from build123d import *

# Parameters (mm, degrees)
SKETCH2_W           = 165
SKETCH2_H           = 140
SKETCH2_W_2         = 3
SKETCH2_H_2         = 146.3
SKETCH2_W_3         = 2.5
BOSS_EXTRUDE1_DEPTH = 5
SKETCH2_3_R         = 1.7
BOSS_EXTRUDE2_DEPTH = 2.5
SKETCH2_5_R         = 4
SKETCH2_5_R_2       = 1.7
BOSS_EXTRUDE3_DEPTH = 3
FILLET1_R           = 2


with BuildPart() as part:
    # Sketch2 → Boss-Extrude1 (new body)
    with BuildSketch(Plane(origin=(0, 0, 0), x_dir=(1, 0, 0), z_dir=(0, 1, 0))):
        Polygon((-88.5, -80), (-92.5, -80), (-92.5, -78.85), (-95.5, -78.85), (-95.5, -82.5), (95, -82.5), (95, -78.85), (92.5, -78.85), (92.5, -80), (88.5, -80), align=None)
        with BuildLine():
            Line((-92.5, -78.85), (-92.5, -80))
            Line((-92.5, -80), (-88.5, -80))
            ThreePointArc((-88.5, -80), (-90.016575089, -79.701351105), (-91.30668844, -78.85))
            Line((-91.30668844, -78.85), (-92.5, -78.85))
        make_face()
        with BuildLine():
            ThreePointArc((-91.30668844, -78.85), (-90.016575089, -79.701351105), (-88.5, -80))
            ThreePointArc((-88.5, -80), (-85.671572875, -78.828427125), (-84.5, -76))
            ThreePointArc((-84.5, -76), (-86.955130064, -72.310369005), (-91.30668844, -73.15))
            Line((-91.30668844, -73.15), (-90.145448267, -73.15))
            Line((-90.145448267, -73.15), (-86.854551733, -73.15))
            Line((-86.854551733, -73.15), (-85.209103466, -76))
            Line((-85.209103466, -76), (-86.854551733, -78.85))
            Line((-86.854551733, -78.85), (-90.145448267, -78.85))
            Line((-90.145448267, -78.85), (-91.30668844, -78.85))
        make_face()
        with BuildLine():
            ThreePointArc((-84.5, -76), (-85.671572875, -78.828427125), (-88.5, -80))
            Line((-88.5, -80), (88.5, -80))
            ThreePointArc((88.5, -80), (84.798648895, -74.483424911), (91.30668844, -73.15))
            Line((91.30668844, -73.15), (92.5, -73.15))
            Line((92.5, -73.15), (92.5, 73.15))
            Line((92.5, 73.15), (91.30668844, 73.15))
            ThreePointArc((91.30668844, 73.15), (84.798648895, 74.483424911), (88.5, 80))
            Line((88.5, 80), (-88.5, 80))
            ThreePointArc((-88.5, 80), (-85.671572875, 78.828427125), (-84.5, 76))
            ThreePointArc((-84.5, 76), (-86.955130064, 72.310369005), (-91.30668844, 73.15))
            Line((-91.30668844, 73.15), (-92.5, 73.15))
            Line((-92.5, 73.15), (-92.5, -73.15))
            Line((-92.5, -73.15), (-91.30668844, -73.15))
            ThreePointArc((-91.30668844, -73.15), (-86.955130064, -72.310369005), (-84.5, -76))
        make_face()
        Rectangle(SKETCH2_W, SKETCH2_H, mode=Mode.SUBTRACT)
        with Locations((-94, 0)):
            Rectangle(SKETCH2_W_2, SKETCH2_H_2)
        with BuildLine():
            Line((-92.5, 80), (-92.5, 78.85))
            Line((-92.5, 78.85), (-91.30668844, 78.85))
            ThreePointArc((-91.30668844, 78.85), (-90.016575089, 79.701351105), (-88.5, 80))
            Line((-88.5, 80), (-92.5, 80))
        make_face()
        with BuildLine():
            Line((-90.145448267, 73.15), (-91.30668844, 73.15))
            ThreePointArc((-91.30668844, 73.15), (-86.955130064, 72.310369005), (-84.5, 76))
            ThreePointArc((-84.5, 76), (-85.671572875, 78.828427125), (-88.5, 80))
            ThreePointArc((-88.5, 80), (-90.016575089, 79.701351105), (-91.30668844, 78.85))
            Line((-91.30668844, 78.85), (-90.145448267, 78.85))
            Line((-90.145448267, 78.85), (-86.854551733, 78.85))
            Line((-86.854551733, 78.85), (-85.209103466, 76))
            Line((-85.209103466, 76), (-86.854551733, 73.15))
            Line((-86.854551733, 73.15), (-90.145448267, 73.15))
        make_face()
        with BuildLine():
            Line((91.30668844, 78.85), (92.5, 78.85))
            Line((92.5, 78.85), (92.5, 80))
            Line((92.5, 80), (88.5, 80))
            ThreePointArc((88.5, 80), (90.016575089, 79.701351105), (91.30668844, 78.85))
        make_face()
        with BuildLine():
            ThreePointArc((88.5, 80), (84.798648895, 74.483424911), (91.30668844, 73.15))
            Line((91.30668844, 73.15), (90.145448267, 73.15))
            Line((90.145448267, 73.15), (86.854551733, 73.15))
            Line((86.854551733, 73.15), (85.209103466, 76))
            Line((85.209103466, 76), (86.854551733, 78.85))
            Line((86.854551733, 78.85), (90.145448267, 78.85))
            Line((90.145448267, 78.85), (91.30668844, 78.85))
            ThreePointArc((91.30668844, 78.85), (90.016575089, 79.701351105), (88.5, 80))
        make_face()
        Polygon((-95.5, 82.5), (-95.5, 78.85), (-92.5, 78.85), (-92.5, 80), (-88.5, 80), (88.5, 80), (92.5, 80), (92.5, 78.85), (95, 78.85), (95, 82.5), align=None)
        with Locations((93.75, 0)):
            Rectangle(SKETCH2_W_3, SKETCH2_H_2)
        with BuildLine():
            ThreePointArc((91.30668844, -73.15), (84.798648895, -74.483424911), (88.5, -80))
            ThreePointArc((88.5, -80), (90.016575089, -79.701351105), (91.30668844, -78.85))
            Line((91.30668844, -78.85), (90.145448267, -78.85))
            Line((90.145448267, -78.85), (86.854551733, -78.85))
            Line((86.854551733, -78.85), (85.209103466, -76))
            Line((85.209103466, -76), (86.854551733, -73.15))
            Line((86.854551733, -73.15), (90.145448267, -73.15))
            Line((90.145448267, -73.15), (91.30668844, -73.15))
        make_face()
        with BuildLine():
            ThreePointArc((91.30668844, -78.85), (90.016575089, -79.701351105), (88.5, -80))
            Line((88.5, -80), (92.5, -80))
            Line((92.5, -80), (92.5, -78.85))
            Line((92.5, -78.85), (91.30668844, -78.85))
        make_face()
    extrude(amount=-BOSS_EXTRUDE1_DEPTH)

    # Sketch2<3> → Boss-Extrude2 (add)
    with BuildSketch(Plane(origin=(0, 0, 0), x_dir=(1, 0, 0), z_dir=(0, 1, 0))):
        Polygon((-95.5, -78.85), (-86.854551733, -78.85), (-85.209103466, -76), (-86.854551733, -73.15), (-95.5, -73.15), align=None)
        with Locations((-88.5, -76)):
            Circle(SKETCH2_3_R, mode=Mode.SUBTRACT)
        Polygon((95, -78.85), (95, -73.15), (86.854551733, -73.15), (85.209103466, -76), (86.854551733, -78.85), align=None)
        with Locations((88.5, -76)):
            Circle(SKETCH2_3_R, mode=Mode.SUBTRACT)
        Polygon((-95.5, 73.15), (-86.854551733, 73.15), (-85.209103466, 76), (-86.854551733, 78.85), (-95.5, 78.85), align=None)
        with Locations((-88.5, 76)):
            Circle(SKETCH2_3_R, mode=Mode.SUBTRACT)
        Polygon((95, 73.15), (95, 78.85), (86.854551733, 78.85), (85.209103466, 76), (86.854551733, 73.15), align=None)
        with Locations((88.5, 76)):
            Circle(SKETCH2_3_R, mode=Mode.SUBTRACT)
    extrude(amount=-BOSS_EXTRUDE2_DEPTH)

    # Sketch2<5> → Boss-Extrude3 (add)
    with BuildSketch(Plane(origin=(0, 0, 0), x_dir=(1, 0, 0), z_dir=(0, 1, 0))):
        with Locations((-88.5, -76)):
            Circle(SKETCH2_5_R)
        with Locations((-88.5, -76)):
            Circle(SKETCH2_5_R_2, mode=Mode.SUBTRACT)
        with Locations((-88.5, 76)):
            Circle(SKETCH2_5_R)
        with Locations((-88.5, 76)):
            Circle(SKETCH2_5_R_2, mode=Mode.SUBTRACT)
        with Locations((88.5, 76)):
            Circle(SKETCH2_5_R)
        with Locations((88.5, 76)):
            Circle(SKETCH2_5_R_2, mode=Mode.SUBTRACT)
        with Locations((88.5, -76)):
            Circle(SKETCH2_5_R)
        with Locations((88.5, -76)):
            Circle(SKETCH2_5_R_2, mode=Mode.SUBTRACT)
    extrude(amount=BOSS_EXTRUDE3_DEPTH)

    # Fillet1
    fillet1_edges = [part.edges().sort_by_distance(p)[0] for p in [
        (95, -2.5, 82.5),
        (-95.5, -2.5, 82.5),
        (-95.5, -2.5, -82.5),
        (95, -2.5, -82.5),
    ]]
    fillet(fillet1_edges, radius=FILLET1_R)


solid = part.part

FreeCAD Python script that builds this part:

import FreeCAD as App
import Part
import Sketcher
Q = App.Units.Quantity


def edges_at(feature, points):
    """Names of the edges that pass closest to the given points."""
    edges = feature.Shape.Edges
    near = lambda p: min(range(len(edges)), key=lambda i: edges[i].distToShape(Part.Vertex(*p))[0])
    return sorted({f"Edge{near(p) + 1}" for p in points})


def add_polygon(sketch, points):
    """Adds a closed chain of lines whose ends are joined by coincident constraints."""
    first, n = sketch.GeometryCount, len(points)
    for a, b in zip(points, points[1:] + points[:1]):
        sketch.addGeometry(Part.LineSegment(App.Vector(*a, 0), App.Vector(*b, 0)), False)
    for i in range(n):
        sketch.addConstraint(Sketcher.Constraint("Coincident", first + i, 2, first + (i + 1) % n, 1))

doc = App.newDocument("Part")
body = doc.addObject("PartDesign::Body", "Body")

# Sketch on XZ plane
sketch1 = body.newObject("Sketcher::SketchObject", "Sketch")
sketch1.AttachmentSupport = (doc.getObject("XZ_Plane"), [""])
sketch1.MapMode = "FlatFace"
add_polygon(sketch1, [(-95.5, 78.85), (-95.5, 82.5), (95, 82.5), (95, 78.85), (86.854552, 78.85), (85.209103, 76), (86.854552, 73.15), (95, 73.15), (95, -73.15), (86.854552, -73.15), (85.209103, -76), (86.854552, -78.85), (95, -78.85), (95, -82.5), (-95.5, -82.5), (-95.5, -78.85), (-86.854552, -78.85), (-85.209103, -76), (-86.854552, -73.15), (-95.5, -73.15), (-95.5, 73.15), (-86.854552, 73.15), (-85.209103, 76), (-86.854552, 78.85)])  # lines 0-23
add_polygon(sketch1, [(82.5, 70), (-82.5, 70), (-82.5, -70), (82.5, -70)])  # lines 24-27
sketch1.addConstraint([
    Sketcher.Constraint("Vertical", 0),
    Sketcher.Constraint("Horizontal", 1),
    Sketcher.Constraint("Vertical", 2),
    Sketcher.Constraint("Horizontal", 3),
    Sketcher.Constraint("Horizontal", 6),
    Sketcher.Constraint("Vertical", 7),
    Sketcher.Constraint("Horizontal", 8),
    Sketcher.Constraint("Horizontal", 11),
    Sketcher.Constraint("Vertical", 12),
    Sketcher.Constraint("Horizontal", 13),
    Sketcher.Constraint("Vertical", 14),
    Sketcher.Constraint("Horizontal", 15),
    Sketcher.Constraint("Horizontal", 18),
    Sketcher.Constraint("Vertical", 19),
    Sketcher.Constraint("Horizontal", 20),
    Sketcher.Constraint("Horizontal", 23),
    Sketcher.Constraint("Horizontal", 24),
    Sketcher.Constraint("Vertical", 25),
    Sketcher.Constraint("Horizontal", 26),
    Sketcher.Constraint("Vertical", 27),
    Sketcher.Constraint("Symmetric", 3, 2, 15, 2, -1, 1),
    Sketcher.Constraint("Symmetric", 4, 2, 16, 2, -1, 1),
    Sketcher.Constraint("Symmetric", 5, 2, 17, 2, -1, 1),
    Sketcher.Constraint("Symmetric", 8, 2, 20, 2, -1, 1),
    Sketcher.Constraint("Symmetric", 9, 2, 21, 2, -1, 1),
    Sketcher.Constraint("Symmetric", 10, 2, 22, 2, -1, 1),
    Sketcher.Constraint("Symmetric", 24, 2, 26, 2, -1, 1),
    Sketcher.Constraint("Symmetric", 10, 2, 15, 2, -2),
    Sketcher.Constraint("Symmetric", 9, 2, 16, 2, -2),
    Sketcher.Constraint("Symmetric", 8, 2, 17, 2, -2),
    Sketcher.Constraint("Symmetric", 1, 2, 12, 2, -1),
    Sketcher.Constraint("Parallel", 4, 9),
    Sketcher.Constraint("Vertical", 3, 2, 5, 2),
    Sketcher.Constraint("Vertical", 2, 2, 6, 2),
    Sketcher.Constraint("Vertical", 0, 2, 13, 2),
    Sketcher.Constraint("Vertical", 14, 2, 18, 2),
    Sketcher.Constraint("DistanceX", 24, 2, 24, 1, Q("165 mm")),
    Sketcher.Constraint("DistanceY", 25, 2, 25, 1, Q("140 mm")),
    Sketcher.Constraint("Angle", 4, Q("-120 deg")),
    Sketcher.Constraint("DistanceX", 1, 1, 1, 2, Q("190.5 mm")),
    Sketcher.Constraint("DistanceY", 7, 2, 7, 1, Q("146.3 mm")),
    Sketcher.Constraint("DistanceX", -1, 1, 1, 2, Q("95 mm")),
    Sketcher.Constraint("DistanceY", -1, 1, 4, 2, Q("76 mm")),
    Sketcher.Constraint("DistanceY", 13, 2, 0, 2, Q("165 mm")),
    Sketcher.Constraint("DistanceX", 3, 2, 3, 1, Q("8.145448 mm")),
])
pad1 = body.newObject("PartDesign::Pad", "Pad")
pad1.Profile = sketch1
pad1.Length = 5

# Sketch on XZ plane
sketch2 = body.newObject("Sketcher::SketchObject", "Sketch001")
sketch2.AttachmentSupport = (doc.getObject("XZ_Plane"), [""])
sketch2.MapMode = "FlatFace"
add_polygon(sketch2, [(-95.5, 78.85), (-86.854552, 78.85), (-85.209103, 76), (-86.854552, 73.15), (-95.5, 73.15)])  # lines 0-4
sketch2.addGeometry(Part.Circle(App.Vector(-88.5, 76, 0), App.Vector(0, 0, 1), 1.7), False)  # 5
add_polygon(sketch2, [(95, 78.85), (95, 73.15), (86.854552, 73.15), (85.209103, 76), (86.854552, 78.85)])  # lines 6-10
sketch2.addGeometry(Part.Circle(App.Vector(88.5, 76, 0), App.Vector(0, 0, 1), 1.7), False)  # 11
add_polygon(sketch2, [(-95.5, -73.15), (-86.854552, -73.15), (-85.209103, -76), (-86.854552, -78.85), (-95.5, -78.85)])  # lines 12-16
sketch2.addGeometry(Part.Circle(App.Vector(-88.5, -76, 0), App.Vector(0, 0, 1), 1.7), False)  # 17
add_polygon(sketch2, [(95, -73.15), (95, -78.85), (86.854552, -78.85), (85.209103, -76), (86.854552, -73.15)])  # lines 18-22
sketch2.addGeometry(Part.Circle(App.Vector(88.5, -76, 0), App.Vector(0, 0, 1), 1.7), False)  # 23
sketch2.addConstraint([
    Sketcher.Constraint("Horizontal", 0),
    Sketcher.Constraint("Horizontal", 3),
    Sketcher.Constraint("Vertical", 4),
    Sketcher.Constraint("Vertical", 6),
    Sketcher.Constraint("Horizontal", 7),
    Sketcher.Constraint("Horizontal", 10),
    Sketcher.Constraint("Horizontal", 12),
    Sketcher.Constraint("Horizontal", 15),
    Sketcher.Constraint("Vertical", 16),
    Sketcher.Constraint("Vertical", 18),
    Sketcher.Constraint("Horizontal", 19),
    Sketcher.Constraint("Horizontal", 22),
    Sketcher.Constraint("Equal", 5, 11),
    Sketcher.Constraint("Equal", 11, 17),
    Sketcher.Constraint("Equal", 17, 23),
    Sketcher.Constraint("Symmetric", 11, 3, 17, 3, -1, 1),
    Sketcher.Constraint("Symmetric", 5, 3, 23, 3, -1, 1),
    Sketcher.Constraint("Symmetric", 7, 2, 12, 2, -1, 1),
    Sketcher.Constraint("Symmetric", 8, 2, 13, 2, -1, 1),
    Sketcher.Constraint("Symmetric", 9, 2, 14, 2, -1, 1),
    Sketcher.Constraint("Symmetric", 0, 2, 19, 2, -1, 1),
    Sketcher.Constraint("Symmetric", 1, 2, 20, 2, -1, 1),
    Sketcher.Constraint("Symmetric", 2, 2, 21, 2, -1, 1),
    Sketcher.Constraint("Symmetric", 5, 3, 11, 3, -2),
    Sketcher.Constraint("Symmetric", 2, 2, 7, 2, -2),
    Sketcher.Constraint("Symmetric", 1, 2, 8, 2, -2),
    Sketcher.Constraint("Symmetric", 0, 2, 9, 2, -2),
    Sketcher.Constraint("Parallel", 1, 8),
    Sketcher.Constraint("Horizontal", 11, 3, 1, 2),
    Sketcher.Constraint("Vertical", 0, 2, 2, 2),
    Sketcher.Constraint("Vertical", 4, 2, 15, 2),
    Sketcher.Constraint("Vertical", 10, 2, 18, 2),
    Sketcher.Constraint("Diameter", 5, Q("3.4 mm")),
    Sketcher.Constraint("Angle", 1, Q("-60 deg")),
    Sketcher.Constraint("DistanceY", 4, 1, 4, 2, Q("5.7 mm")),
    Sketcher.Constraint("DistanceY", -1, 1, 5, 3, Q("76 mm")),
    Sketcher.Constraint("DistanceX", -1, 1, 6, 2, Q("95 mm")),
    Sketcher.Constraint("DistanceX", 5, 3, 11, 3, Q("177 mm")),
    Sketcher.Constraint("DistanceX", 3, 2, 5, 3, Q("7 mm")),
    Sketcher.Constraint("DistanceX", 0, 1, 0, 2, Q("8.645448 mm")),
])
pad2 = body.newObject("PartDesign::Pad", "Pad001")
pad2.Profile = sketch2
pad2.Length = 2.5

# Sketch on XZ plane
sketch3 = body.newObject("Sketcher::SketchObject", "Sketch002")
sketch3.AttachmentSupport = (doc.getObject("XZ_Plane"), [""])
sketch3.MapMode = "FlatFace"
sketch3.addGeometry([
    Part.Circle(App.Vector(-88.5, 76, 0), App.Vector(0, 0, 1), 4),  # 0
    Part.Circle(App.Vector(-88.5, 76, 0), App.Vector(0, 0, 1), 1.7),  # 1
    Part.Circle(App.Vector(-88.5, -76, 0), App.Vector(0, 0, 1), 4),  # 2
    Part.Circle(App.Vector(-88.5, -76, 0), App.Vector(0, 0, 1), 1.7),  # 3
    Part.Circle(App.Vector(88.5, -76, 0), App.Vector(0, 0, 1), 4),  # 4
    Part.Circle(App.Vector(88.5, -76, 0), App.Vector(0, 0, 1), 1.7),  # 5
    Part.Circle(App.Vector(88.5, 76, 0), App.Vector(0, 0, 1), 4),  # 6
    Part.Circle(App.Vector(88.5, 76, 0), App.Vector(0, 0, 1), 1.7),  # 7
], False)
sketch3.addConstraint([
    Sketcher.Constraint("Coincident", 1, 3, 0, 3),
    Sketcher.Constraint("Coincident", 3, 3, 2, 3),
    Sketcher.Constraint("Coincident", 5, 3, 4, 3),
    Sketcher.Constraint("Coincident", 7, 3, 6, 3),
    Sketcher.Constraint("Equal", 0, 2),
    Sketcher.Constraint("Equal", 1, 3),
    Sketcher.Constraint("Equal", 2, 4),
    Sketcher.Constraint("Equal", 3, 5),
    Sketcher.Constraint("Equal", 4, 6),
    Sketcher.Constraint("Equal", 5, 7),
    Sketcher.Constraint("Symmetric", 0, 3, 4, 3, -1, 1),
    Sketcher.Constraint("Symmetric", 2, 3, 6, 3, -1, 1),
    Sketcher.Constraint("Symmetric", 2, 3, 4, 3, -2),
    Sketcher.Constraint("Diameter", 0, Q("8 mm")),
    Sketcher.Constraint("Diameter", 1, Q("3.4 mm")),
    Sketcher.Constraint("DistanceY", -1, 1, 0, 3, Q("76 mm")),
    Sketcher.Constraint("DistanceX", 2, 3, 4, 3, Q("177 mm")),
])
pad3 = body.newObject("PartDesign::Pad", "Pad002")
pad3.Profile = sketch3
pad3.Length = 3
pad3.Reversed = True
doc.recompute()

fillet = body.newObject("PartDesign::Fillet", "Fillet")
fillet.Base = (pad3, edges_at(pad3, [
    (95, -2.5, 82.5),
    (-95.5, -2.5, 82.5),
    (-95.5, -2.5, -82.5),
    (95, -2.5, -82.5),
]))
fillet.Radius = 2

doc.recompute()
